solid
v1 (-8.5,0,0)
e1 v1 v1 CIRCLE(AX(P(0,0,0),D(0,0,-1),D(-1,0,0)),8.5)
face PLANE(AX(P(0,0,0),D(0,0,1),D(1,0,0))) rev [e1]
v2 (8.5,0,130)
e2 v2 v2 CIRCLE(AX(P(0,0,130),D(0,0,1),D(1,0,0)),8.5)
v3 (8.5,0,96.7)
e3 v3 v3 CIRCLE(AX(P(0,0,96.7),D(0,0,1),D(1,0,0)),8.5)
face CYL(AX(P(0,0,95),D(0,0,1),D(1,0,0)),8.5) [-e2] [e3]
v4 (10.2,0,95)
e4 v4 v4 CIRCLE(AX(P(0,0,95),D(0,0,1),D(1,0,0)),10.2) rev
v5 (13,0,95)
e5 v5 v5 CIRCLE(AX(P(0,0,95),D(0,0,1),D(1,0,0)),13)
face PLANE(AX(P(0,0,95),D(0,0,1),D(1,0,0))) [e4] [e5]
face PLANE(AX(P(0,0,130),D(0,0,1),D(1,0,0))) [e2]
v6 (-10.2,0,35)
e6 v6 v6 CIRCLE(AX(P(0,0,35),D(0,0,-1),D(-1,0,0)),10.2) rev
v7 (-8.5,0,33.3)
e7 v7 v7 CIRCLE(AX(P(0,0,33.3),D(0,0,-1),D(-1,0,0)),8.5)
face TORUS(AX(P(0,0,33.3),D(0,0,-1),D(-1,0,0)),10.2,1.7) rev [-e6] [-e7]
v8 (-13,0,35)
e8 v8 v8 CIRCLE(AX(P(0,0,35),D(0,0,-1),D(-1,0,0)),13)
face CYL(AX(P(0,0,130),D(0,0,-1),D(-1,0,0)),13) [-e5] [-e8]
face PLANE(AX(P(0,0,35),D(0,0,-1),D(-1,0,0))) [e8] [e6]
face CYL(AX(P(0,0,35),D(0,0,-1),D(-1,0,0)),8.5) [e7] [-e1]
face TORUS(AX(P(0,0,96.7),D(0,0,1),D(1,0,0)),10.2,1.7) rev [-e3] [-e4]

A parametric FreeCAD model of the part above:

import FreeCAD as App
import Part
import Sketcher

V = App.Vector


def edges_at(feature, points):
    """Names of the edges that pass closest to the given points."""
    edges = feature.Shape.Edges
    near = lambda p: min(range(len(edges)), key=lambda i: edges[i].distToShape(Part.Vertex(*p))[0])
    return sorted({f"Edge{near(p) + 1}" for p in points})

doc = App.newDocument("Part")
params = doc.addObject("Spreadsheet::Sheet", "Params")
for row, (alias, value) in enumerate([
    ("sketch1_diameter", "26 mm"),
    ("pad1_length", "130 mm"),
    ("sketch2_diameter", "26 mm"),
    ("sketch2_diameter2", "17 mm"),
    ("pocket1_length", "35 mm"),
    ("sketch3_diameter", "26 mm"),
    ("sketch3_diameter2", "17 mm"),
    ("pocket2_length", "35 mm"),
    ("fillet_radius", "1.7 mm"),
    ("fillet2_radius", "1.7 mm"),
], start=1):
    params.set(f"A{row}", alias)
    params.set(f"B{row}", "=" + value)
    params.setAlias(f"B{row}", alias)

body = doc.addObject("PartDesign::Body", "Body")

# Sketch on XY plane
sketch1 = body.newObject("Sketcher::SketchObject", "Sketch")
sketch1.AttachmentSupport = (doc.getObject("XY_Plane"), [""])
sketch1.MapMode = "FlatFace"
sketch1.addGeometry(Part.Circle(V(0, 0, 0), V(0, 0, 1), 13), False)
sketch1.addConstraint(Sketcher.Constraint("Coincident", 0, 3, -1, 1))
sketch1.addConstraint(Sketcher.Constraint("Diameter", 0, 26.0))
sketch1.setExpression("Constraints[1]", "Params.sketch1_diameter")
pad1 = body.newObject("PartDesign::Pad", "Pad")
pad1.Profile = sketch1
pad1.setExpression("Length", "Params.pad1_length")

# Sketch on XY plane
sketch2 = body.newObject("Sketcher::SketchObject", "Sketch001")
sketch2.AttachmentSupport = (doc.getObject("XY_Plane"), [""])
sketch2.MapMode = "FlatFace"
sketch2.AttachmentOffset = App.Placement(V(0, 0, 130), App.Rotation())
sketch2.addGeometry(Part.Circle(V(0, 0, 0), V(0, 0, 1), 13), False)
sketch2.addGeometry(Part.Circle(V(0, 0, 0), V(0, 0, 1), 8), False)
sketch2.addConstraint(Sketcher.Constraint("Coincident", 0, 3, -1, 1))
sketch2.addConstraint(Sketcher.Constraint("Coincident", 1, 3, -1, 1))
sketch2.addConstraint(Sketcher.Constraint("Diameter", 0, 26.0))
sketch2.addConstraint(Sketcher.Constraint("Diameter", 1, 17.0))
sketch2.setExpression("Constraints[2]", "Params.sketch2_diameter")
sketch2.setExpression("Constraints[3]", "Params.sketch2_diameter2")
pocket1 = body.newObject("PartDesign::Pocket", "Pocket")
pocket1.Profile = sketch2
pocket1.setExpression("Length", "Params.pocket1_length")

# Sketch on XY plane
sketch3 = body.newObject("Sketcher::SketchObject", "Sketch002")
sketch3.AttachmentSupport = (doc.getObject("XY_Plane"), [""])
sketch3.MapMode = "FlatFace"
sketch3.addGeometry(Part.Circle(V(0, 0, 0), V(0, 0, 1), 13), False)
sketch3.addGeometry(Part.Circle(V(0, 0, 0), V(0, 0, 1), 8), False)
sketch3.addConstraint(Sketcher.Constraint("Coincident", 0, 3, -1, 1))
sketch3.addConstraint(Sketcher.Constraint("Coincident", 1, 3, -1, 1))
sketch3.addConstraint(Sketcher.Constraint("Diameter", 0, 26.0))
sketch3.addConstraint(Sketcher.Constraint("Diameter", 1, 17.0))
sketch3.setExpression("Constraints[2]", "Params.sketch3_diameter")
sketch3.setExpression("Constraints[3]", "Params.sketch3_diameter2")
pocket2 = body.newObject("PartDesign::Pocket", "Pocket001")
pocket2.Profile = sketch3
pocket2.setExpression("Length", "Params.pocket2_length")
pocket2.Reversed = True
doc.recompute()

fillet = body.newObject("PartDesign::Fillet", "Fillet")
fillet.Base = (pocket2, edges_at(pocket2, [(-8.5, 0, 95)]))
fillet.setExpression("Radius", "Params.fillet_radius")
doc.recompute()

fillet2 = body.newObject("PartDesign::Fillet", "Fillet001")
fillet2.Base = (fillet, edges_at(fillet, [(8.5, 0, 35)]))
fillet2.setExpression("Radius", "Params.fillet2_radius")

doc.recompute()
